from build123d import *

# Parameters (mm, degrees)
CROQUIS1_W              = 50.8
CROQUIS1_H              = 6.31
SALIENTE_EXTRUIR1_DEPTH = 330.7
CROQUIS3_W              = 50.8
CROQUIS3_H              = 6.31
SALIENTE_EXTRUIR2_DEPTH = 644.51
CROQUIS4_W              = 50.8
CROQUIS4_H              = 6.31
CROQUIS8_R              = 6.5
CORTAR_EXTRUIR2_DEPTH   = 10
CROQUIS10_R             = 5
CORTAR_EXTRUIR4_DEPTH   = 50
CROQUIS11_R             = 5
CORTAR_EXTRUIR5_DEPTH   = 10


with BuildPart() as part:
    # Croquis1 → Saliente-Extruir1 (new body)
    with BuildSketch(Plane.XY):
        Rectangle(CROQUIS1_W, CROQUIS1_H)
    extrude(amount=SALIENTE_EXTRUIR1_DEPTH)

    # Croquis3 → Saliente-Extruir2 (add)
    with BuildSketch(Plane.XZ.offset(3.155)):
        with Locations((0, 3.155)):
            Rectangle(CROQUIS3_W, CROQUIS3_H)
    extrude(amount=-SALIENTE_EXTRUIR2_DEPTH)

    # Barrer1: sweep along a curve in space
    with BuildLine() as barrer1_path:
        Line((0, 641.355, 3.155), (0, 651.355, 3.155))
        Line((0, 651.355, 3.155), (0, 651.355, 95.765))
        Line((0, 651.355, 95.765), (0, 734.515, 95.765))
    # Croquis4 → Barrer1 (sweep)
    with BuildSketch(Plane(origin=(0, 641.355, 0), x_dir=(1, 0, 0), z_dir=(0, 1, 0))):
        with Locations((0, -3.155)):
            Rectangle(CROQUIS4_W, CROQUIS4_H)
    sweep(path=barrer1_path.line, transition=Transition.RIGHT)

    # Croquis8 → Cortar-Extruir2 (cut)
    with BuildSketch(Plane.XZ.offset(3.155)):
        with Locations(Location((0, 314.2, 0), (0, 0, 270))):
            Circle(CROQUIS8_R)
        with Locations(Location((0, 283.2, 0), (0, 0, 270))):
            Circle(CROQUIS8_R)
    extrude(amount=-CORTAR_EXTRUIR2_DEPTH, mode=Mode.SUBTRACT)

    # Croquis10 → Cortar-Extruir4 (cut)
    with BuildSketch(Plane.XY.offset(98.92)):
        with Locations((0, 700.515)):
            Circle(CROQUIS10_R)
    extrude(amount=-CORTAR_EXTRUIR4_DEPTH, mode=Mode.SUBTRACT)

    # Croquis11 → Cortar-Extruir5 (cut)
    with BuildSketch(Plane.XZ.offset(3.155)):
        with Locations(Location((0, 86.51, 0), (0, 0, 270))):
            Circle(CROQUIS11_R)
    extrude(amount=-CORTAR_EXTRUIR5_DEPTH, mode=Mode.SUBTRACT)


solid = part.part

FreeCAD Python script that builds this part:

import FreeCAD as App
import Part
import Sketcher
from FreeCAD import Vector

doc = App.newDocument("Part")
body = doc.addObject("PartDesign::Body", "Body")

# Sketch on XY plane
sketch1 = body.newObject("Sketcher::SketchObject", "Sketch")
sketch1.AttachmentSupport = (doc.getObject("XY_Plane"), [""])
sketch1.MapMode = "FlatFace"
sketch1.addGeometry([
    Part.LineSegment(Vector(-25, 3, 0), Vector(-25, -3, 0)),
    Part.LineSegment(Vector(-25, -3, 0), Vector(25, -3, 0)),
    Part.LineSegment(Vector(25, -3, 0), Vector(25, 3, 0)),
    Part.LineSegment(Vector(25, 3, 0), Vector(-25, 3, 0)),
], False)
sketch1.addConstraint([
    Sketcher.Constraint("Coincident", 0, 2, 1, 1),
    Sketcher.Constraint("Coincident", 1, 2, 2, 1),
    Sketcher.Constraint("Coincident", 2, 2, 3, 1),
    Sketcher.Constraint("Coincident", 3, 2, 0, 1),
    Sketcher.Constraint("Vertical", 0),
    Sketcher.Constraint("Horizontal", 1),
    Sketcher.Constraint("Vertical", 2),
    Sketcher.Constraint("Horizontal", 3),
    Sketcher.Constraint("Symmetric", 0, 2, 2, 2, -1, 1),
    Sketcher.Constraint("DistanceX", 1, 1, 1, 2, 50.8),
    Sketcher.Constraint("DistanceY", 0, 2, 0, 1, 6.31),
])
pad1 = body.newObject("PartDesign::Pad", "Pad")
pad1.Profile = sketch1
pad1.Length = 330.7

# Sketch on XZ plane
sketch2 = body.newObject("Sketcher::SketchObject", "Sketch001")
sketch2.AttachmentSupport = (doc.getObject("XZ_Plane"), [""])
sketch2.MapMode = "FlatFace"
sketch2.AttachmentOffset = App.Placement(Vector(0, 0, 3.155), App.Rotation())
sketch2.addGeometry([
    Part.LineSegment(Vector(-25, 6, 0), Vector(-25, 0, 0)),
    Part.LineSegment(Vector(-25, 0, 0), Vector(25, 0, 0)),
    Part.LineSegment(Vector(25, 0, 0), Vector(25, 6, 0)),
    Part.LineSegment(Vector(25, 6, 0), Vector(-25, 6, 0)),
], False)
sketch2.addConstraint([
    Sketcher.Constraint("Coincident", 0, 2, 1, 1),
    Sketcher.Constraint("Coincident", 1, 2, 2, 1),
    Sketcher.Constraint("Coincident", 2, 2, 3, 1),
    Sketcher.Constraint("Coincident", 3, 2, 0, 1),
    Sketcher.Constraint("Vertical", 0),
    Sketcher.Constraint("Horizontal", 1),
    Sketcher.Constraint("Vertical", 2),
    Sketcher.Constraint("Horizontal", 3),
    Sketcher.Constraint("Symmetric", 0, 2, 1, 2, -1, 1),
    Sketcher.Constraint("DistanceX", 1, 1, 1, 2, 50.8),
    Sketcher.Constraint("DistanceY", 0, 2, 0, 1, 6.31),
])
pad2 = body.newObject("PartDesign::Pad", "Pad001")
pad2.Profile = sketch2
pad2.Length = 644.51
pad2.Reversed = True

# Sketch on XZ plane
sketch3 = body.newObject("Sketcher::SketchObject", "Sketch002")
sketch3.AttachmentSupport = (doc.getObject("XZ_Plane"), [""])
sketch3.MapMode = "FlatFace"
sketch3.AttachmentOffset = App.Placement(Vector(0, 0, -641.355), App.Rotation())
sketch3.addGeometry([
    Part.LineSegment(Vector(-25, 0, 0), Vector(-25, 6, 0)),
    Part.LineSegment(Vector(-25, 6, 0), Vector(25, 6, 0)),
    Part.LineSegment(Vector(25, 6, 0), Vector(25, 0, 0)),
    Part.LineSegment(Vector(25, 0, 0), Vector(-25, 0, 0)),
], False)
sketch3.addConstraint([
    Sketcher.Constraint("Coincident", 0, 2, 1, 1),
    Sketcher.Constraint("Coincident", 1, 2, 2, 1),
    Sketcher.Constraint("Coincident", 2, 2, 3, 1),
    Sketcher.Constraint("Coincident", 3, 2, 0, 1),
    Sketcher.Constraint("Vertical", 0),
    Sketcher.Constraint("Horizontal", 1),
    Sketcher.Constraint("Vertical", 2),
    Sketcher.Constraint("Horizontal", 3),
    Sketcher.Constraint("Symmetric", 2, 2, 3, 2, -1, 1),
    Sketcher.Constraint("DistanceX", 1, 1, 1, 2, 50.8),
    Sketcher.Constraint("DistanceY", 0, 1, 0, 2, 6.31),
])

# Sketch on YZ plane
sketch4 = body.newObject("Sketcher::SketchObject", "Sketch003")
sketch4.AttachmentSupport = (doc.getObject("YZ_Plane"), [""])
sketch4.MapMode = "FlatFace"
sketch4.addGeometry([
    Part.LineSegment(Vector(641, 3, 0), Vector(651, 3, 0)),
    Part.LineSegment(Vector(651, 3, 0), Vector(651, 96, 0)),
    Part.LineSegment(Vector(651, 96, 0), Vector(735, 96, 0)),
], False)
sketch4.addConstraint([
    Sketcher.Constraint("Coincident", 0, 2, 1, 1),
    Sketcher.Constraint("Coincident", 1, 2, 2, 1),
    Sketcher.Constraint("Horizontal", 0),
    Sketcher.Constraint("Vertical", 1),
    Sketcher.Constraint("Horizontal", 2),
    Sketcher.Constraint("DistanceX", 0, 1, 0, 2, 10.0),
    Sketcher.Constraint("DistanceX", 2, 1, 2, 2, 83.16),
    Sketcher.Constraint("DistanceY", 1, 1, 1, 2, 92.61),
    Sketcher.Constraint("DistanceX", -1, 1, 0, 1, 641.355),
    Sketcher.Constraint("DistanceY", -1, 1, 0, 1, 3.155),
])
doc.recompute()

additivepipe = body.newObject("PartDesign::AdditivePipe", "AdditivePipe")
additivepipe.Profile = sketch3
additivepipe.Spine = (sketch4, ["Edge1", "Edge2", "Edge3"])
additivepipe.Transition = "Right corner"

# Sketch on XZ plane
sketch5 = body.newObject("Sketcher::SketchObject", "Sketch004")
sketch5.AttachmentSupport = (doc.getObject("XZ_Plane"), [""])
sketch5.MapMode = "FlatFace"
sketch5.AttachmentOffset = App.Placement(Vector(0, 0, 3.155), App.Rotation())
sketch5.addGeometry([
    Part.Circle(Vector(0, 314, 0), Vector(0, 0, 1), 6),
    Part.Circle(Vector(0, 283, 0), Vector(0, 0, 1), 6),
], False)
sketch5.addConstraint([
    Sketcher.Constraint("Equal", 0, 1),
    Sketcher.Constraint("PointOnObject", 0, 3, -2),
    Sketcher.Constraint("PointOnObject", 1, 3, -2),
    Sketcher.Constraint("Diameter", 0, 13.0),
    Sketcher.Constraint("DistanceY", 1, 3, 0, 3, 31.0),
    Sketcher.Constraint("DistanceY", -1, 1, 0, 3, 314.2),
])
pocket1 = body.newObject("PartDesign::Pocket", "Pocket")
pocket1.Profile = sketch5
pocket1.Length = 10

# Sketch on XY plane
sketch6 = body.newObject("Sketcher::SketchObject", "Sketch005")
sketch6.AttachmentSupport = (doc.getObject("XY_Plane"), [""])
sketch6.MapMode = "FlatFace"
sketch6.AttachmentOffset = App.Placement(Vector(0, 0, 98.92), App.Rotation())
sketch6.addGeometry(Part.Circle(Vector(0, 701, 0), Vector(0, 0, 1), 5), False)
sketch6.addConstraint([
    Sketcher.Constraint("PointOnObject", 0, 3, -2),
    Sketcher.Constraint("Diameter", 0, 10.0),
    Sketcher.Constraint("DistanceY", -1, 1, 0, 3, 700.515),
])
pocket2 = body.newObject("PartDesign::Pocket", "Pocket001")
pocket2.Profile = sketch6
pocket2.Length = 50

# Sketch on XZ plane
sketch7 = body.newObject("Sketcher::SketchObject", "Sketch006")
sketch7.AttachmentSupport = (doc.getObject("XZ_Plane"), [""])
sketch7.MapMode = "FlatFace"
sketch7.AttachmentOffset = App.Placement(Vector(0, 0, 3.155), App.Rotation())
sketch7.addGeometry(Part.Circle(Vector(0, 87, 0), Vector(0, 0, 1), 5), False)
sketch7.addConstraint([
    Sketcher.Constraint("PointOnObject", 0, 3, -2),
    Sketcher.Constraint("Diameter", 0, 10.0),
    Sketcher.Constraint("DistanceY", -1, 1, 0, 3, 86.51),
])
pocket3 = body.newObject("PartDesign::Pocket", "Pocket002")
pocket3.Profile = sketch7
pocket3.Length = 10

doc.recompute()
